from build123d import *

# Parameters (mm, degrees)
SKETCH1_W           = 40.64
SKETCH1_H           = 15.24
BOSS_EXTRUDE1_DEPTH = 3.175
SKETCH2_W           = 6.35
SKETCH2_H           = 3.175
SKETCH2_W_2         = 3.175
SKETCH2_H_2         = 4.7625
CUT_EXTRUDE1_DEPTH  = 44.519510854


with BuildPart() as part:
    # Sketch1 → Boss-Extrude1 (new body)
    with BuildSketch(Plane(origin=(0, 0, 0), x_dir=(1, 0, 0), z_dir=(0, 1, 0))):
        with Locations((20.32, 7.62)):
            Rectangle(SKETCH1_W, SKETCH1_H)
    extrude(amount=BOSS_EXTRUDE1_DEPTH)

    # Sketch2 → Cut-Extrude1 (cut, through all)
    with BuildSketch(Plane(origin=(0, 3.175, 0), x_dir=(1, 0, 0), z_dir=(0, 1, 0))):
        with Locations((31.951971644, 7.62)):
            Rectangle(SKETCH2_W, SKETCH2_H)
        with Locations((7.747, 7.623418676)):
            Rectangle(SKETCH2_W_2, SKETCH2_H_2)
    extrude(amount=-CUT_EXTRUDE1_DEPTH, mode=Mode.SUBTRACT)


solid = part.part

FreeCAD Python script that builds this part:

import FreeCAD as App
import Part
import Sketcher
from FreeCAD import Vector
Q = App.Units.Quantity

doc = App.newDocument("Part")
body = doc.addObject("PartDesign::Body", "Body")

# Sketch on XZ plane
sketch1 = body.newObject("Sketcher::SketchObject", "Sketch")
sketch1.AttachmentSupport = (doc.getObject("XZ_Plane"), [""])
sketch1.MapMode = "FlatFace"
sketch1.addGeometry([
    Part.LineSegment(Vector(0, -15, 0), Vector(0, 0, 0)),
    Part.LineSegment(Vector(0, 0, 0), Vector(41, 0, 0)),
    Part.LineSegment(Vector(41, 0, 0), Vector(41, -15, 0)),
    Part.LineSegment(Vector(41, -15, 0), Vector(0, -15, 0)),
], False)
sketch1.addConstraint([
    Sketcher.Constraint("Coincident", 0, 2, 1, 1),
    Sketcher.Constraint("Coincident", 1, 2, 2, 1),
    Sketcher.Constraint("Coincident", 2, 2, 3, 1),
    Sketcher.Constraint("Coincident", 3, 2, 0, 1),
    Sketcher.Constraint("Vertical", 0),
    Sketcher.Constraint("Horizontal", 1),
    Sketcher.Constraint("Vertical", 2),
    Sketcher.Constraint("Horizontal", 3),
    Sketcher.Constraint("Coincident", 0, 2, -1, 1),
    Sketcher.Constraint("DistanceX", 1, 1, 1, 2, Q("1.6 in")),
    Sketcher.Constraint("DistanceY", 0, 1, 0, 2, Q("0.6 in")),
])
pad1 = body.newObject("PartDesign::Pad", "Pad")
pad1.Profile = sketch1
pad1.Length = Q("0.125 in")
pad1.Reversed = True

# Sketch on XZ plane
sketch2 = body.newObject("Sketcher::SketchObject", "Sketch001")
sketch2.AttachmentSupport = (doc.getObject("XZ_Plane"), [""])
sketch2.MapMode = "FlatFace"
sketch2.AttachmentOffset = App.Placement(Vector(0, 0, -0.125 * 25.4), App.Rotation())
sketch2.addGeometry([
    Part.LineSegment(Vector(28.8, -9.2, 0), Vector(28.8, -6, 0)),  # 0
    Part.LineSegment(Vector(28.8, -6, 0), Vector(35.1, -6, 0)),  # 1
    Part.LineSegment(Vector(35.1, -6, 0), Vector(35.1, -9.2, 0)),  # 2
    Part.LineSegment(Vector(35.1, -9.2, 0), Vector(28.8, -9.2, 0)),  # 3
    Part.LineSegment(Vector(6.2, -10, 0), Vector(6.2, -5.2, 0)),  # 4
    Part.LineSegment(Vector(6.2, -5.2, 0), Vector(9.3, -5.2, 0)),  # 5
    Part.LineSegment(Vector(9.3, -5.2, 0), Vector(9.3, -10, 0)),  # 6
    Part.LineSegment(Vector(9.3, -10, 0), Vector(6.2, -10, 0)),  # 7
], False)
sketch2.addConstraint([
    Sketcher.Constraint("Coincident", 0, 2, 1, 1),
    Sketcher.Constraint("Coincident", 1, 2, 2, 1),
    Sketcher.Constraint("Coincident", 2, 2, 3, 1),
    Sketcher.Constraint("Coincident", 3, 2, 0, 1),
    Sketcher.Constraint("Coincident", 4, 2, 5, 1),
    Sketcher.Constraint("Coincident", 5, 2, 6, 1),
    Sketcher.Constraint("Coincident", 6, 2, 7, 1),
    Sketcher.Constraint("Coincident", 7, 2, 4, 1),
    Sketcher.Constraint("Vertical", 0),
    Sketcher.Constraint("Horizontal", 1),
    Sketcher.Constraint("Vertical", 2),
    Sketcher.Constraint("Horizontal", 3),
    Sketcher.Constraint("Vertical", 4),
    Sketcher.Constraint("Horizontal", 5),
    Sketcher.Constraint("Vertical", 6),
    Sketcher.Constraint("Horizontal", 7),
    Sketcher.Constraint("Equal", 7, 0),
    Sketcher.Constraint("DistanceX", 1, 1, 1, 2, Q("0.25 in")),
    Sketcher.Constraint("DistanceX", 5, 1, 5, 2, Q("0.125 in")),
    Sketcher.Constraint("DistanceY", 4, 1, 4, 2, Q("0.1875 in")),
    Sketcher.Constraint("DistanceY", 0, 2, -1, 1, Q("0.2375 in")),
    Sketcher.Constraint("DistanceX", -1, 1, 4, 2, Q("0.2425 in")),
    Sketcher.Constraint("DistanceX", -1, 1, 0, 2, Q("28.776972 mm")),
    Sketcher.Constraint("DistanceY", 4, 2, -1, 1, Q("5.242169 mm")),
])
pocket1 = body.newObject("PartDesign::Pocket", "Pocket")
pocket1.Profile = sketch2
pocket1.Type = "ThroughAll"
pocket1.Reversed = True

doc.recompute()
